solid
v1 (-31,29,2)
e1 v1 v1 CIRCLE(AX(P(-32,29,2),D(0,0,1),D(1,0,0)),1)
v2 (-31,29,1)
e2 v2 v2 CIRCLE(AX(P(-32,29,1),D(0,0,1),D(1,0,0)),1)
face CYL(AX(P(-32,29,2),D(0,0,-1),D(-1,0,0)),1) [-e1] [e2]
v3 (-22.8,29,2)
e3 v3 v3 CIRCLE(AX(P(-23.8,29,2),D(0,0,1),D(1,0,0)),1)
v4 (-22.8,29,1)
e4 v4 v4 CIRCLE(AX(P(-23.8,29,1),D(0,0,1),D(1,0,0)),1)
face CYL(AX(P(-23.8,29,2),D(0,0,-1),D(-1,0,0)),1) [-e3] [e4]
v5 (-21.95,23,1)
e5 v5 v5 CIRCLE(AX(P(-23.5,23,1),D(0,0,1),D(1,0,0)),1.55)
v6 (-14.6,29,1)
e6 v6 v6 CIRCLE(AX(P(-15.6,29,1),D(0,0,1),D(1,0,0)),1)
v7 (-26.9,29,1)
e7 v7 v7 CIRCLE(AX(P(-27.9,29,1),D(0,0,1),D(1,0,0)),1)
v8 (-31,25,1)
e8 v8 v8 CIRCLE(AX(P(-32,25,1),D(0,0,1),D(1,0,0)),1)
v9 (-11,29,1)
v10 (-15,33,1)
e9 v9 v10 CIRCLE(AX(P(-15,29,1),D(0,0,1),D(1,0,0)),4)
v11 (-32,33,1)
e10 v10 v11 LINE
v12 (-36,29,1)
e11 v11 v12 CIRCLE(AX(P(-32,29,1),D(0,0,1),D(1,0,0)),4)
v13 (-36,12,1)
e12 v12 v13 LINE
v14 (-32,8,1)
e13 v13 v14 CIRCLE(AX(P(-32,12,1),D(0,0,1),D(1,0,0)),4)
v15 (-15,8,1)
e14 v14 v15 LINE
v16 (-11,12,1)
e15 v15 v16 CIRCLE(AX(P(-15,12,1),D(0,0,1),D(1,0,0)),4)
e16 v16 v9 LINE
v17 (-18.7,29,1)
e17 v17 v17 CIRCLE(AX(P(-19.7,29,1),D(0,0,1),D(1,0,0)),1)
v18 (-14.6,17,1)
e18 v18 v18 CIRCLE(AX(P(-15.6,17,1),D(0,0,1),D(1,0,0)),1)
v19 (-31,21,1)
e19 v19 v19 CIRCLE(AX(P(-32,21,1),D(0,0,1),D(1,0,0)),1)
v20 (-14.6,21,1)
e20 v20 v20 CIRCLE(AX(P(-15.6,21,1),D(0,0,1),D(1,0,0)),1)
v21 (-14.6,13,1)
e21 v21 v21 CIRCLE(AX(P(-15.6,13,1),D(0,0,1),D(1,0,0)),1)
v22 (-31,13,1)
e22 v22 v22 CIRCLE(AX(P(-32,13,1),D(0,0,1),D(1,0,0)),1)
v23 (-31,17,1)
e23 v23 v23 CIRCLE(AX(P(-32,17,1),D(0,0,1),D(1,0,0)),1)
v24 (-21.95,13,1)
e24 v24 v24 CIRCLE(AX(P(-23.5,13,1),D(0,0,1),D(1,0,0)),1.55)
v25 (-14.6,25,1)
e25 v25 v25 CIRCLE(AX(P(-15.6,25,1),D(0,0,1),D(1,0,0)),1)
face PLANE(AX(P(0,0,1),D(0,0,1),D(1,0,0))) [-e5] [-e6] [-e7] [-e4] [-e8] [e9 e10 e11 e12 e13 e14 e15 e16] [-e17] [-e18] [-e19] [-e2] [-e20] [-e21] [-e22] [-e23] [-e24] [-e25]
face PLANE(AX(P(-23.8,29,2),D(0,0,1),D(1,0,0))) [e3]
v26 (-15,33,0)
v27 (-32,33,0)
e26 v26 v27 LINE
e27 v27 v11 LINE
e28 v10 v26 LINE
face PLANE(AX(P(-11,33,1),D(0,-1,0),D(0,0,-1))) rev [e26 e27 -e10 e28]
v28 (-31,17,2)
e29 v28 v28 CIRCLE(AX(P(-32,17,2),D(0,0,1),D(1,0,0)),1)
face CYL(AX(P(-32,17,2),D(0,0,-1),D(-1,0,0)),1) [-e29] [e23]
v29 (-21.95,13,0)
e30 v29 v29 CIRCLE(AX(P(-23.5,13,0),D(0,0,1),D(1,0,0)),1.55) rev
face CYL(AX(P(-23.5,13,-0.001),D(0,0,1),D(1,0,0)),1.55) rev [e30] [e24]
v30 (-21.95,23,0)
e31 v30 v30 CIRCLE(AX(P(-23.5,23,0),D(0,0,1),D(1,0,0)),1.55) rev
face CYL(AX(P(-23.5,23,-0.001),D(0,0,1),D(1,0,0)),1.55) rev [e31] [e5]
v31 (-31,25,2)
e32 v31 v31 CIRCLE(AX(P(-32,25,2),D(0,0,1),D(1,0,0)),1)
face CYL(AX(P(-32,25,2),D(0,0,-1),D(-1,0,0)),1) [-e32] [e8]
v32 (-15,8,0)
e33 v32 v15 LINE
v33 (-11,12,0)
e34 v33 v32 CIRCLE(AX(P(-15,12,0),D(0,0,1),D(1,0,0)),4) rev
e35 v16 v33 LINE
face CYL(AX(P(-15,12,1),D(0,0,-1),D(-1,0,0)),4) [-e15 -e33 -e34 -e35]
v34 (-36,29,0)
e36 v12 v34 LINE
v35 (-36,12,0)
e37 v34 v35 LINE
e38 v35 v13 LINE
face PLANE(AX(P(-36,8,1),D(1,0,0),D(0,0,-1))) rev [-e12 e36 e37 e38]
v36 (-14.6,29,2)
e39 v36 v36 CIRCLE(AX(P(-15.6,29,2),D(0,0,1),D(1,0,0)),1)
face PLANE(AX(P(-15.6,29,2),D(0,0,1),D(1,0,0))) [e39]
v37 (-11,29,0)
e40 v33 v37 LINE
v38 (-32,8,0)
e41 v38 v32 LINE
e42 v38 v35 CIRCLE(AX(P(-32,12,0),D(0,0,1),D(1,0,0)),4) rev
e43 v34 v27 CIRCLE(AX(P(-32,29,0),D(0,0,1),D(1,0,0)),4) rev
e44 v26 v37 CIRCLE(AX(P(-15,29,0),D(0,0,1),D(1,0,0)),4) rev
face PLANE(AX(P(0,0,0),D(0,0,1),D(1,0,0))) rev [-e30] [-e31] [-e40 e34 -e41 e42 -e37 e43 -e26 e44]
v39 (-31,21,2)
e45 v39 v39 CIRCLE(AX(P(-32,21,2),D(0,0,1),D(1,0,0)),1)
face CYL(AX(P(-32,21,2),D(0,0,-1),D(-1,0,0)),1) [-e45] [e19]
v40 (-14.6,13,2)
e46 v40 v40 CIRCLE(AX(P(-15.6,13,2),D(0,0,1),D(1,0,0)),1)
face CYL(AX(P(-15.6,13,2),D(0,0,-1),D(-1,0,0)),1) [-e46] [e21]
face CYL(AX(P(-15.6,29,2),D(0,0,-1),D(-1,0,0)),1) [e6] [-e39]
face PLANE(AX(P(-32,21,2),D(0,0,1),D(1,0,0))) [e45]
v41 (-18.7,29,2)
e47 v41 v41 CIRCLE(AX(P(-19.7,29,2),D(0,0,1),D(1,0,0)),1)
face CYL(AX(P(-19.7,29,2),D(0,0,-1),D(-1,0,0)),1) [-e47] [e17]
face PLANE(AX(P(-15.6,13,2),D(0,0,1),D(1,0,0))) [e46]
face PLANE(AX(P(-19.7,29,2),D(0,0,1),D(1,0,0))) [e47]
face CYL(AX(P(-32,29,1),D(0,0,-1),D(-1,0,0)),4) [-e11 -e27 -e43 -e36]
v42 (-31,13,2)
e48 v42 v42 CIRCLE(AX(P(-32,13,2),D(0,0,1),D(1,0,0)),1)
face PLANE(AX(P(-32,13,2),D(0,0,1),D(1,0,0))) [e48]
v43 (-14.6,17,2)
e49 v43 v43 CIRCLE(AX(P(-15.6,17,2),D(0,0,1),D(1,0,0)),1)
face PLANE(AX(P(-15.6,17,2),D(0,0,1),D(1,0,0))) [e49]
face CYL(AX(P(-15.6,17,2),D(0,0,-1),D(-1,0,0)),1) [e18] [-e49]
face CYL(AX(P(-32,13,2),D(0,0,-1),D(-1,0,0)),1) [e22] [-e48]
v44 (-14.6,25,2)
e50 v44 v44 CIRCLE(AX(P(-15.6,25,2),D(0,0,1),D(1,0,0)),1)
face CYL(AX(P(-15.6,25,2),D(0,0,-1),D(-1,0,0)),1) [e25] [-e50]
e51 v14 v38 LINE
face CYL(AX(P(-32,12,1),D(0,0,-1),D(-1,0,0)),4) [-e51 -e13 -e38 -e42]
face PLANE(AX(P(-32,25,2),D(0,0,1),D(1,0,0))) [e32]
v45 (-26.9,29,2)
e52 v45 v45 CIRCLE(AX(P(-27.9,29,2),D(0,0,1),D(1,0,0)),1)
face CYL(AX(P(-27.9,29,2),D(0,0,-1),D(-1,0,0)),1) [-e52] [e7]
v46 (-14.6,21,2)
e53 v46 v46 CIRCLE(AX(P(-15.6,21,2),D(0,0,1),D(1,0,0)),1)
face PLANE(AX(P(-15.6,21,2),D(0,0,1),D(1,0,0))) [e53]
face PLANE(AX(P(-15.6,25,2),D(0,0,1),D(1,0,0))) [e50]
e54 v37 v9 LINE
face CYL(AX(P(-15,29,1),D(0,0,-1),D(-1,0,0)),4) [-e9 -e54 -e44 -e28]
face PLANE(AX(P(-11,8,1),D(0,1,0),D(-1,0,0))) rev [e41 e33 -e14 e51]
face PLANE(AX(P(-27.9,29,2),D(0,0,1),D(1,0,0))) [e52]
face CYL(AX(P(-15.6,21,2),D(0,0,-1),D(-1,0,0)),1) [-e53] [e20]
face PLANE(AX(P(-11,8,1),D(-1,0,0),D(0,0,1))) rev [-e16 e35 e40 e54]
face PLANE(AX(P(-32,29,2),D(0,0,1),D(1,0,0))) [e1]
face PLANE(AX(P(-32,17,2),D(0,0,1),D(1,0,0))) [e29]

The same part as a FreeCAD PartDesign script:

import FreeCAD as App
import Part
import Sketcher


def edges_at(feature, points):
    """Names of the edges that pass closest to the given points."""
    edges = feature.Shape.Edges
    near = lambda p: min(range(len(edges)), key=lambda i: edges[i].distToShape(Part.Vertex(*p))[0])
    return sorted({f"Edge{near(p) + 1}" for p in points})


def add_polygon(sketch, points):
    """Adds a closed chain of lines whose ends are joined by coincident constraints."""
    first, n = sketch.GeometryCount, len(points)
    for a, b in zip(points, points[1:] + points[:1]):
        sketch.addGeometry(Part.LineSegment(App.Vector(*a, 0), App.Vector(*b, 0)), False)
    for i in range(n):
        sketch.addConstraint(Sketcher.Constraint("Coincident", first + i, 2, first + (i + 1) % n, 1))

doc = App.newDocument("Part")
body = doc.addObject("PartDesign::Body", "Body")

sketch1 = body.newObject("Sketcher::SketchObject", "Sketch")
sketch1.AttachmentSupport = (doc.getObject("XY_Plane"), [""])
sketch1.MapMode = "FlatFace"
add_polygon(sketch1, [(-36, 33), (-36, 8), (-11, 8), (-11, 33)])
sketch1.addConstraint(Sketcher.Constraint("Vertical", 0))
sketch1.addConstraint(Sketcher.Constraint("Horizontal", 1))
sketch1.addConstraint(Sketcher.Constraint("Vertical", 2))
sketch1.addConstraint(Sketcher.Constraint("Horizontal", 3))
sketch1.addConstraint(Sketcher.Constraint("Equal", 3, 0))
sketch1.addConstraint(Sketcher.Constraint("DistanceX", 1, 1, 1, 2, 25.0))
sketch1.addConstraint(Sketcher.Constraint("DistanceX", 0, 2, -1, 1, 36.0))
sketch1.addConstraint(Sketcher.Constraint("DistanceY", -1, 1, 0, 2, 8.0))
pad1 = body.newObject("PartDesign::Pad", "Pad")
pad1.Profile = sketch1
pad1.Length = 1

sketch2 = body.newObject("Sketcher::SketchObject", "Sketch001")
sketch2.AttachmentSupport = (doc.getObject("XY_Plane"), [""])
sketch2.MapMode = "FlatFace"
sketch2.AttachmentOffset = App.Placement(App.Vector(0, 0, 1), App.Rotation())
sketch2.addGeometry(Part.Circle(App.Vector(-32, 29, 0), App.Vector(0, 0, 1), 1), False)
sketch2.addGeometry(Part.Circle(App.Vector(-27.9, 29, 0), App.Vector(0, 0, 1), 1), False)
sketch2.addGeometry(Part.Circle(App.Vector(-23.8, 29, 0), App.Vector(0, 0, 1), 1), False)
sketch2.addGeometry(Part.Circle(App.Vector(-19.7, 29, 0), App.Vector(0, 0, 1), 1), False)
sketch2.addGeometry(Part.Circle(App.Vector(-15.6, 29, 0), App.Vector(0, 0, 1), 1), False)
sketch2.addGeometry(Part.Circle(App.Vector(-32, 25, 0), App.Vector(0, 0, 1), 1), False)
sketch2.addGeometry(Part.Circle(App.Vector(-15.6, 25, 0), App.Vector(0, 0, 1), 1), False)
sketch2.addGeometry(Part.Circle(App.Vector(-32, 21, 0), App.Vector(0, 0, 1), 1), False)
sketch2.addGeometry(Part.Circle(App.Vector(-15.6, 21, 0), App.Vector(0, 0, 1), 1), False)
sketch2.addGeometry(Part.Circle(App.Vector(-32, 17, 0), App.Vector(0, 0, 1), 1), False)
sketch2.addGeometry(Part.Circle(App.Vector(-15.6, 17, 0), App.Vector(0, 0, 1), 1), False)
sketch2.addGeometry(Part.Circle(App.Vector(-32, 13, 0), App.Vector(0, 0, 1), 1), False)
sketch2.addGeometry(Part.Circle(App.Vector(-15.6, 13, 0), App.Vector(0, 0, 1), 1), False)
sketch2.addConstraint(Sketcher.Constraint("Equal", 0, 1))
sketch2.addConstraint(Sketcher.Constraint("Equal", 1, 2))
sketch2.addConstraint(Sketcher.Constraint("Equal", 2, 3))
sketch2.addConstraint(Sketcher.Constraint("Equal", 3, 4))
sketch2.addConstraint(Sketcher.Constraint("Equal", 4, 5))
sketch2.addConstraint(Sketcher.Constraint("Equal", 5, 6))
sketch2.addConstraint(Sketcher.Constraint("Equal", 6, 7))
sketch2.addConstraint(Sketcher.Constraint("Equal", 7, 8))
sketch2.addConstraint(Sketcher.Constraint("Equal", 8, 9))
sketch2.addConstraint(Sketcher.Constraint("Equal", 9, 10))
sketch2.addConstraint(Sketcher.Constraint("Equal", 10, 11))
sketch2.addConstraint(Sketcher.Constraint("Equal", 11, 12))
sketch2.addConstraint(Sketcher.Constraint("Horizontal", 0, 3, 1, 3))
sketch2.addConstraint(Sketcher.Constraint("Horizontal", 1, 3, 2, 3))
sketch2.addConstraint(Sketcher.Constraint("Horizontal", 2, 3, 3, 3))
sketch2.addConstraint(Sketcher.Constraint("Horizontal", 3, 3, 4, 3))
sketch2.addConstraint(Sketcher.Constraint("Horizontal", 5, 3, 6, 3))
sketch2.addConstraint(Sketcher.Constraint("Horizontal", 7, 3, 8, 3))
sketch2.addConstraint(Sketcher.Constraint("Horizontal", 9, 3, 10, 3))
sketch2.addConstraint(Sketcher.Constraint("Horizontal", 11, 3, 12, 3))
sketch2.addConstraint(Sketcher.Constraint("Vertical", 0, 3, 5, 3))
sketch2.addConstraint(Sketcher.Constraint("Vertical", 4, 3, 6, 3))
sketch2.addConstraint(Sketcher.Constraint("Vertical", 5, 3, 7, 3))
sketch2.addConstraint(Sketcher.Constraint("Vertical", 6, 3, 8, 3))
sketch2.addConstraint(Sketcher.Constraint("Vertical", 7, 3, 9, 3))
sketch2.addConstraint(Sketcher.Constraint("Vertical", 8, 3, 10, 3))
sketch2.addConstraint(Sketcher.Constraint("Vertical", 9, 3, 11, 3))
sketch2.addConstraint(Sketcher.Constraint("Vertical", 10, 3, 12, 3))
sketch2.addConstraint(Sketcher.Constraint("Diameter", 0, 2.0))
sketch2.addConstraint(Sketcher.Constraint("DistanceX", 0, 3, -1, 1, 32.0))
sketch2.addConstraint(Sketcher.Constraint("DistanceY", -1, 1, 0, 3, 29.0))
sketch2.addConstraint(Sketcher.Constraint("DistanceY", -1, 1, 5, 3, 25.0))
sketch2.addConstraint(Sketcher.Constraint("DistanceY", -1, 1, 7, 3, 21.0))
sketch2.addConstraint(Sketcher.Constraint("DistanceY", -1, 1, 9, 3, 17.0))
sketch2.addConstraint(Sketcher.Constraint("DistanceY", -1, 1, 11, 3, 13.0))
sketch2.addConstraint(Sketcher.Constraint("DistanceX", 1, 3, -1, 1, 27.9))
sketch2.addConstraint(Sketcher.Constraint("DistanceX", 2, 3, -1, 1, 23.8))
sketch2.addConstraint(Sketcher.Constraint("DistanceX", 3, 3, -1, 1, 19.7))
sketch2.addConstraint(Sketcher.Constraint("DistanceX", 4, 3, -1, 1, 15.6))
pad2 = body.newObject("PartDesign::Pad", "Pad001")
pad2.Profile = sketch2
pad2.Length = 1
doc.recompute()

fillet = body.newObject("PartDesign::Fillet", "Fillet")
fillet.Base = (pad2, edges_at(pad2, [
    (-11, 8, 0.5),
    (-36, 8, 0.5),
    (-36, 33, 0.5),
    (-11, 33, 0.5),
]))
fillet.Radius = 4

sketch3 = body.newObject("Sketcher::SketchObject", "Sketch002")
sketch3.AttachmentSupport = (doc.getObject("XY_Plane"), [""])
sketch3.MapMode = "FlatFace"
sketch3.AttachmentOffset = App.Placement(App.Vector(0, 0, 1), App.Rotation())
sketch3.addGeometry(Part.Circle(App.Vector(-23.5, 23, 0), App.Vector(0, 0, 1), 1.55), False)
sketch3.addConstraint(Sketcher.Constraint("Diameter", 0, 3.1))
sketch3.addConstraint(Sketcher.Constraint("DistanceY", -1, 1, 0, 3, 23.0))
sketch3.addConstraint(Sketcher.Constraint("DistanceX", 0, 3, -1, 1, 23.5))
pocket1 = body.newObject("PartDesign::Pocket", "Pocket")
pocket1.Profile = sketch3
pocket1.Type = "UpToFirst"

sketch4 = body.newObject("Sketcher::SketchObject", "Sketch003")
sketch4.AttachmentSupport = (doc.getObject("XY_Plane"), [""])
sketch4.MapMode = "FlatFace"
sketch4.AttachmentOffset = App.Placement(App.Vector(0, 0, 1), App.Rotation())
sketch4.addGeometry(Part.Circle(App.Vector(-23.5, 13, 0), App.Vector(0, 0, 1), 1.55), False)
sketch4.addConstraint(Sketcher.Constraint("Diameter", 0, 3.1))
sketch4.addConstraint(Sketcher.Constraint("DistanceY", -1, 1, 0, 3, 13.0))
sketch4.addConstraint(Sketcher.Constraint("DistanceX", 0, 3, -1, 1, 23.5))
pocket2 = body.newObject("PartDesign::Pocket", "Pocket001")
pocket2.Profile = sketch4
pocket2.Type = "UpToFirst"

doc.recompute()
